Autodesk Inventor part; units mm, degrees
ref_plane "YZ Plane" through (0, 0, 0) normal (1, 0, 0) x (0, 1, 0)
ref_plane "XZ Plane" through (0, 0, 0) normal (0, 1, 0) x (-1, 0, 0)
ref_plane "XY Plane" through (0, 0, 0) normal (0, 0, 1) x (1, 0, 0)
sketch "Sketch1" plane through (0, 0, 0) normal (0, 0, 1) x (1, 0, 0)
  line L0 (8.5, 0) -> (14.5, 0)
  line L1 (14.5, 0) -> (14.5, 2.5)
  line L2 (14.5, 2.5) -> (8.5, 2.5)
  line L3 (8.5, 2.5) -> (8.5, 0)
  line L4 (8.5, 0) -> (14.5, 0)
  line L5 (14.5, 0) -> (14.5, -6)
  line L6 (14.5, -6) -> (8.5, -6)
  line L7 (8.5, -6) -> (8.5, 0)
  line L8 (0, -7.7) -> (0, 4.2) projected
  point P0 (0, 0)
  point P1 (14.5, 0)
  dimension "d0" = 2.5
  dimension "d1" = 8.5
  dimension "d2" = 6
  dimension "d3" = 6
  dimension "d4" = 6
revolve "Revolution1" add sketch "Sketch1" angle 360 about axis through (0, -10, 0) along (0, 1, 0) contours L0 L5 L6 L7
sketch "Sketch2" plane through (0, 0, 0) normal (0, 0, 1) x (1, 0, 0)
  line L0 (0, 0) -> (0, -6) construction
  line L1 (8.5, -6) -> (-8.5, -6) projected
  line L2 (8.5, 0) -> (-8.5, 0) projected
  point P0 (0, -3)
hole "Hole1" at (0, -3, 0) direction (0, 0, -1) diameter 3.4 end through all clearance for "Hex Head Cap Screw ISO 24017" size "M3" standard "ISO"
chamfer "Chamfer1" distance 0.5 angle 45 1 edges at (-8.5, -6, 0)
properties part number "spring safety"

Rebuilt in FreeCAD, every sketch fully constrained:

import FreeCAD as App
import Part
import Sketcher


def edges_at(feature, points):
    """Names of the edges that pass closest to the given points."""
    edges = feature.Shape.Edges
    near = lambda p: min(range(len(edges)), key=lambda i: edges[i].distToShape(Part.Vertex(*p))[0])
    return sorted({f"Edge{near(p) + 1}" for p in points})

doc = App.newDocument("Part")
body = doc.addObject("PartDesign::Body", "Body")

sketch1 = doc.addObject("Sketcher::SketchObject", "Sketch")
body.addObject(sketch1)
sketch1.AttachmentSupport = (doc.XY_Plane, [""])
sketch1.MapMode = "FlatFace"
sketch1.addGeometry(Part.LineSegment(App.Vector(14, 0, 0), App.Vector(8, 0, 0)), False)
sketch1.addGeometry(Part.LineSegment(App.Vector(8, 0, 0), App.Vector(8, -6, 0)), False)
sketch1.addGeometry(Part.LineSegment(App.Vector(8, -6, 0), App.Vector(14, -6, 0)), False)
sketch1.addGeometry(Part.LineSegment(App.Vector(14, -6, 0), App.Vector(14, 0, 0)), False)
sketch1.addConstraint(Sketcher.Constraint("Coincident", 0, 2, 1, 1))
sketch1.addConstraint(Sketcher.Constraint("Coincident", 1, 2, 2, 1))
sketch1.addConstraint(Sketcher.Constraint("Coincident", 2, 2, 3, 1))
sketch1.addConstraint(Sketcher.Constraint("Coincident", 3, 2, 0, 1))
sketch1.addConstraint(Sketcher.Constraint("Horizontal", 0))
sketch1.addConstraint(Sketcher.Constraint("Vertical", 1))
sketch1.addConstraint(Sketcher.Constraint("Horizontal", 2))
sketch1.addConstraint(Sketcher.Constraint("Vertical", 3))
sketch1.addConstraint(Sketcher.Constraint("PointOnObject", 0, 2, -1))
sketch1.addConstraint(Sketcher.Constraint("Equal", 2, 1))
sketch1.addConstraint(Sketcher.Constraint("DistanceX", 0, 2, 0, 1, 6.0))
sketch1.addConstraint(Sketcher.Constraint("DistanceX", -1, 1, 0, 2, 8.5))
revolution = doc.addObject("PartDesign::Revolution", "Revolution")
body.addObject(revolution)
revolution.Profile = sketch1
revolution.ReferenceAxis = (sketch1, ["V_Axis"])
revolution.Angle = 360

sketch2 = doc.addObject("Sketcher::SketchObject", "Sketch001")
body.addObject(sketch2)
sketch2.AttachmentSupport = (doc.XY_Plane, [""])
sketch2.MapMode = "FlatFace"
sketch2.addGeometry(Part.Circle(App.Vector(0, -3, 0), App.Vector(0, 0, 1), 1.7), False)
sketch2.addConstraint(Sketcher.Constraint("PointOnObject", 0, 3, -2))
sketch2.addConstraint(Sketcher.Constraint("Diameter", 0, 3.4))
sketch2.addConstraint(Sketcher.Constraint("DistanceY", 0, 3, -1, 1, 3.0))
doc.recompute()
hole = doc.addObject("PartDesign::Hole", "Hole")
body.addObject(hole)
hole.Profile = sketch2
hole.ThreadType = "None"
hole.Diameter = 3.4
hole.DepthType = "ThroughAll"
doc.recompute()

chamfer = doc.addObject("PartDesign::Chamfer", "Chamfer")
body.addObject(chamfer)
chamfer.Base = (hole, edges_at(hole, [(-8.5, -6, 0)]))
chamfer.Size = 0.5

doc.recompute()
